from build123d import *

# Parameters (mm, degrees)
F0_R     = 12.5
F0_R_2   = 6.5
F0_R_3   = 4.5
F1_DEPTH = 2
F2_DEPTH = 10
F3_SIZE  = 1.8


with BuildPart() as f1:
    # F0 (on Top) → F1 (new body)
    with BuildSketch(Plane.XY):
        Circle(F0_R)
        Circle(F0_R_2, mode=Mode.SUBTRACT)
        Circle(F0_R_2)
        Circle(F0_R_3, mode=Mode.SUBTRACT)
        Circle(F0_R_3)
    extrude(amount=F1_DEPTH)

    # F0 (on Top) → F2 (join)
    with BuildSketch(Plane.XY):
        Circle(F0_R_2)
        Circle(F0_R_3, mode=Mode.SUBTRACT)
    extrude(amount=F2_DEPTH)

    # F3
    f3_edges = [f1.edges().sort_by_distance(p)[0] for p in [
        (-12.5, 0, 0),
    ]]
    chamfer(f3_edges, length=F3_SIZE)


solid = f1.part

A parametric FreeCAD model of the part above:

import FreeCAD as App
import Part
import Sketcher


def edges_at(feature, points):
    """Names of the edges that pass closest to the given points."""
    edges = feature.Shape.Edges
    near = lambda p: min(range(len(edges)), key=lambda i: edges[i].distToShape(Part.Vertex(*p))[0])
    return sorted({f"Edge{near(p) + 1}" for p in points})

doc = App.newDocument("Part")
body = doc.addObject("PartDesign::Body", "Body")

sketch1 = doc.addObject("Sketcher::SketchObject", "Sketch")
body.addObject(sketch1)
sketch1.AttachmentSupport = (doc.XY_Plane, [""])
sketch1.MapMode = "FlatFace"
sketch1.addGeometry(Part.Circle(App.Vector(0, 0, 0), App.Vector(0, 0, 1), 12), False)
sketch1.addConstraint([
    Sketcher.Constraint("Coincident", 0, 3, -1, 1),
    Sketcher.Constraint("Diameter", 0, 25.0),
])
pad1 = doc.addObject("PartDesign::Pad", "Pad")
body.addObject(pad1)
pad1.Profile = sketch1
pad1.Length = 2

sketch2 = doc.addObject("Sketcher::SketchObject", "Sketch001")
body.addObject(sketch2)
sketch2.AttachmentSupport = (doc.XY_Plane, [""])
sketch2.MapMode = "FlatFace"
sketch2.addGeometry([
    Part.Circle(App.Vector(0, 0, 0), App.Vector(0, 0, 1), 6.5),
    Part.Circle(App.Vector(0, 0, 0), App.Vector(0, 0, 1), 4.5),
], False)
sketch2.addConstraint([
    Sketcher.Constraint("Coincident", 0, 3, -1, 1),
    Sketcher.Constraint("Coincident", 1, 3, -1, 1),
    Sketcher.Constraint("Diameter", 0, 13.0),
    Sketcher.Constraint("Diameter", 1, 9.0),
])
pad2 = doc.addObject("PartDesign::Pad", "Pad001")
body.addObject(pad2)
pad2.Profile = sketch2
pad2.Length = 10
doc.recompute()

chamfer = doc.addObject("PartDesign::Chamfer", "Chamfer")
body.addObject(chamfer)
chamfer.Base = (pad2, edges_at(pad2, [(-12.5, 0, 0)]))
chamfer.Size = 1.8

doc.recompute()
